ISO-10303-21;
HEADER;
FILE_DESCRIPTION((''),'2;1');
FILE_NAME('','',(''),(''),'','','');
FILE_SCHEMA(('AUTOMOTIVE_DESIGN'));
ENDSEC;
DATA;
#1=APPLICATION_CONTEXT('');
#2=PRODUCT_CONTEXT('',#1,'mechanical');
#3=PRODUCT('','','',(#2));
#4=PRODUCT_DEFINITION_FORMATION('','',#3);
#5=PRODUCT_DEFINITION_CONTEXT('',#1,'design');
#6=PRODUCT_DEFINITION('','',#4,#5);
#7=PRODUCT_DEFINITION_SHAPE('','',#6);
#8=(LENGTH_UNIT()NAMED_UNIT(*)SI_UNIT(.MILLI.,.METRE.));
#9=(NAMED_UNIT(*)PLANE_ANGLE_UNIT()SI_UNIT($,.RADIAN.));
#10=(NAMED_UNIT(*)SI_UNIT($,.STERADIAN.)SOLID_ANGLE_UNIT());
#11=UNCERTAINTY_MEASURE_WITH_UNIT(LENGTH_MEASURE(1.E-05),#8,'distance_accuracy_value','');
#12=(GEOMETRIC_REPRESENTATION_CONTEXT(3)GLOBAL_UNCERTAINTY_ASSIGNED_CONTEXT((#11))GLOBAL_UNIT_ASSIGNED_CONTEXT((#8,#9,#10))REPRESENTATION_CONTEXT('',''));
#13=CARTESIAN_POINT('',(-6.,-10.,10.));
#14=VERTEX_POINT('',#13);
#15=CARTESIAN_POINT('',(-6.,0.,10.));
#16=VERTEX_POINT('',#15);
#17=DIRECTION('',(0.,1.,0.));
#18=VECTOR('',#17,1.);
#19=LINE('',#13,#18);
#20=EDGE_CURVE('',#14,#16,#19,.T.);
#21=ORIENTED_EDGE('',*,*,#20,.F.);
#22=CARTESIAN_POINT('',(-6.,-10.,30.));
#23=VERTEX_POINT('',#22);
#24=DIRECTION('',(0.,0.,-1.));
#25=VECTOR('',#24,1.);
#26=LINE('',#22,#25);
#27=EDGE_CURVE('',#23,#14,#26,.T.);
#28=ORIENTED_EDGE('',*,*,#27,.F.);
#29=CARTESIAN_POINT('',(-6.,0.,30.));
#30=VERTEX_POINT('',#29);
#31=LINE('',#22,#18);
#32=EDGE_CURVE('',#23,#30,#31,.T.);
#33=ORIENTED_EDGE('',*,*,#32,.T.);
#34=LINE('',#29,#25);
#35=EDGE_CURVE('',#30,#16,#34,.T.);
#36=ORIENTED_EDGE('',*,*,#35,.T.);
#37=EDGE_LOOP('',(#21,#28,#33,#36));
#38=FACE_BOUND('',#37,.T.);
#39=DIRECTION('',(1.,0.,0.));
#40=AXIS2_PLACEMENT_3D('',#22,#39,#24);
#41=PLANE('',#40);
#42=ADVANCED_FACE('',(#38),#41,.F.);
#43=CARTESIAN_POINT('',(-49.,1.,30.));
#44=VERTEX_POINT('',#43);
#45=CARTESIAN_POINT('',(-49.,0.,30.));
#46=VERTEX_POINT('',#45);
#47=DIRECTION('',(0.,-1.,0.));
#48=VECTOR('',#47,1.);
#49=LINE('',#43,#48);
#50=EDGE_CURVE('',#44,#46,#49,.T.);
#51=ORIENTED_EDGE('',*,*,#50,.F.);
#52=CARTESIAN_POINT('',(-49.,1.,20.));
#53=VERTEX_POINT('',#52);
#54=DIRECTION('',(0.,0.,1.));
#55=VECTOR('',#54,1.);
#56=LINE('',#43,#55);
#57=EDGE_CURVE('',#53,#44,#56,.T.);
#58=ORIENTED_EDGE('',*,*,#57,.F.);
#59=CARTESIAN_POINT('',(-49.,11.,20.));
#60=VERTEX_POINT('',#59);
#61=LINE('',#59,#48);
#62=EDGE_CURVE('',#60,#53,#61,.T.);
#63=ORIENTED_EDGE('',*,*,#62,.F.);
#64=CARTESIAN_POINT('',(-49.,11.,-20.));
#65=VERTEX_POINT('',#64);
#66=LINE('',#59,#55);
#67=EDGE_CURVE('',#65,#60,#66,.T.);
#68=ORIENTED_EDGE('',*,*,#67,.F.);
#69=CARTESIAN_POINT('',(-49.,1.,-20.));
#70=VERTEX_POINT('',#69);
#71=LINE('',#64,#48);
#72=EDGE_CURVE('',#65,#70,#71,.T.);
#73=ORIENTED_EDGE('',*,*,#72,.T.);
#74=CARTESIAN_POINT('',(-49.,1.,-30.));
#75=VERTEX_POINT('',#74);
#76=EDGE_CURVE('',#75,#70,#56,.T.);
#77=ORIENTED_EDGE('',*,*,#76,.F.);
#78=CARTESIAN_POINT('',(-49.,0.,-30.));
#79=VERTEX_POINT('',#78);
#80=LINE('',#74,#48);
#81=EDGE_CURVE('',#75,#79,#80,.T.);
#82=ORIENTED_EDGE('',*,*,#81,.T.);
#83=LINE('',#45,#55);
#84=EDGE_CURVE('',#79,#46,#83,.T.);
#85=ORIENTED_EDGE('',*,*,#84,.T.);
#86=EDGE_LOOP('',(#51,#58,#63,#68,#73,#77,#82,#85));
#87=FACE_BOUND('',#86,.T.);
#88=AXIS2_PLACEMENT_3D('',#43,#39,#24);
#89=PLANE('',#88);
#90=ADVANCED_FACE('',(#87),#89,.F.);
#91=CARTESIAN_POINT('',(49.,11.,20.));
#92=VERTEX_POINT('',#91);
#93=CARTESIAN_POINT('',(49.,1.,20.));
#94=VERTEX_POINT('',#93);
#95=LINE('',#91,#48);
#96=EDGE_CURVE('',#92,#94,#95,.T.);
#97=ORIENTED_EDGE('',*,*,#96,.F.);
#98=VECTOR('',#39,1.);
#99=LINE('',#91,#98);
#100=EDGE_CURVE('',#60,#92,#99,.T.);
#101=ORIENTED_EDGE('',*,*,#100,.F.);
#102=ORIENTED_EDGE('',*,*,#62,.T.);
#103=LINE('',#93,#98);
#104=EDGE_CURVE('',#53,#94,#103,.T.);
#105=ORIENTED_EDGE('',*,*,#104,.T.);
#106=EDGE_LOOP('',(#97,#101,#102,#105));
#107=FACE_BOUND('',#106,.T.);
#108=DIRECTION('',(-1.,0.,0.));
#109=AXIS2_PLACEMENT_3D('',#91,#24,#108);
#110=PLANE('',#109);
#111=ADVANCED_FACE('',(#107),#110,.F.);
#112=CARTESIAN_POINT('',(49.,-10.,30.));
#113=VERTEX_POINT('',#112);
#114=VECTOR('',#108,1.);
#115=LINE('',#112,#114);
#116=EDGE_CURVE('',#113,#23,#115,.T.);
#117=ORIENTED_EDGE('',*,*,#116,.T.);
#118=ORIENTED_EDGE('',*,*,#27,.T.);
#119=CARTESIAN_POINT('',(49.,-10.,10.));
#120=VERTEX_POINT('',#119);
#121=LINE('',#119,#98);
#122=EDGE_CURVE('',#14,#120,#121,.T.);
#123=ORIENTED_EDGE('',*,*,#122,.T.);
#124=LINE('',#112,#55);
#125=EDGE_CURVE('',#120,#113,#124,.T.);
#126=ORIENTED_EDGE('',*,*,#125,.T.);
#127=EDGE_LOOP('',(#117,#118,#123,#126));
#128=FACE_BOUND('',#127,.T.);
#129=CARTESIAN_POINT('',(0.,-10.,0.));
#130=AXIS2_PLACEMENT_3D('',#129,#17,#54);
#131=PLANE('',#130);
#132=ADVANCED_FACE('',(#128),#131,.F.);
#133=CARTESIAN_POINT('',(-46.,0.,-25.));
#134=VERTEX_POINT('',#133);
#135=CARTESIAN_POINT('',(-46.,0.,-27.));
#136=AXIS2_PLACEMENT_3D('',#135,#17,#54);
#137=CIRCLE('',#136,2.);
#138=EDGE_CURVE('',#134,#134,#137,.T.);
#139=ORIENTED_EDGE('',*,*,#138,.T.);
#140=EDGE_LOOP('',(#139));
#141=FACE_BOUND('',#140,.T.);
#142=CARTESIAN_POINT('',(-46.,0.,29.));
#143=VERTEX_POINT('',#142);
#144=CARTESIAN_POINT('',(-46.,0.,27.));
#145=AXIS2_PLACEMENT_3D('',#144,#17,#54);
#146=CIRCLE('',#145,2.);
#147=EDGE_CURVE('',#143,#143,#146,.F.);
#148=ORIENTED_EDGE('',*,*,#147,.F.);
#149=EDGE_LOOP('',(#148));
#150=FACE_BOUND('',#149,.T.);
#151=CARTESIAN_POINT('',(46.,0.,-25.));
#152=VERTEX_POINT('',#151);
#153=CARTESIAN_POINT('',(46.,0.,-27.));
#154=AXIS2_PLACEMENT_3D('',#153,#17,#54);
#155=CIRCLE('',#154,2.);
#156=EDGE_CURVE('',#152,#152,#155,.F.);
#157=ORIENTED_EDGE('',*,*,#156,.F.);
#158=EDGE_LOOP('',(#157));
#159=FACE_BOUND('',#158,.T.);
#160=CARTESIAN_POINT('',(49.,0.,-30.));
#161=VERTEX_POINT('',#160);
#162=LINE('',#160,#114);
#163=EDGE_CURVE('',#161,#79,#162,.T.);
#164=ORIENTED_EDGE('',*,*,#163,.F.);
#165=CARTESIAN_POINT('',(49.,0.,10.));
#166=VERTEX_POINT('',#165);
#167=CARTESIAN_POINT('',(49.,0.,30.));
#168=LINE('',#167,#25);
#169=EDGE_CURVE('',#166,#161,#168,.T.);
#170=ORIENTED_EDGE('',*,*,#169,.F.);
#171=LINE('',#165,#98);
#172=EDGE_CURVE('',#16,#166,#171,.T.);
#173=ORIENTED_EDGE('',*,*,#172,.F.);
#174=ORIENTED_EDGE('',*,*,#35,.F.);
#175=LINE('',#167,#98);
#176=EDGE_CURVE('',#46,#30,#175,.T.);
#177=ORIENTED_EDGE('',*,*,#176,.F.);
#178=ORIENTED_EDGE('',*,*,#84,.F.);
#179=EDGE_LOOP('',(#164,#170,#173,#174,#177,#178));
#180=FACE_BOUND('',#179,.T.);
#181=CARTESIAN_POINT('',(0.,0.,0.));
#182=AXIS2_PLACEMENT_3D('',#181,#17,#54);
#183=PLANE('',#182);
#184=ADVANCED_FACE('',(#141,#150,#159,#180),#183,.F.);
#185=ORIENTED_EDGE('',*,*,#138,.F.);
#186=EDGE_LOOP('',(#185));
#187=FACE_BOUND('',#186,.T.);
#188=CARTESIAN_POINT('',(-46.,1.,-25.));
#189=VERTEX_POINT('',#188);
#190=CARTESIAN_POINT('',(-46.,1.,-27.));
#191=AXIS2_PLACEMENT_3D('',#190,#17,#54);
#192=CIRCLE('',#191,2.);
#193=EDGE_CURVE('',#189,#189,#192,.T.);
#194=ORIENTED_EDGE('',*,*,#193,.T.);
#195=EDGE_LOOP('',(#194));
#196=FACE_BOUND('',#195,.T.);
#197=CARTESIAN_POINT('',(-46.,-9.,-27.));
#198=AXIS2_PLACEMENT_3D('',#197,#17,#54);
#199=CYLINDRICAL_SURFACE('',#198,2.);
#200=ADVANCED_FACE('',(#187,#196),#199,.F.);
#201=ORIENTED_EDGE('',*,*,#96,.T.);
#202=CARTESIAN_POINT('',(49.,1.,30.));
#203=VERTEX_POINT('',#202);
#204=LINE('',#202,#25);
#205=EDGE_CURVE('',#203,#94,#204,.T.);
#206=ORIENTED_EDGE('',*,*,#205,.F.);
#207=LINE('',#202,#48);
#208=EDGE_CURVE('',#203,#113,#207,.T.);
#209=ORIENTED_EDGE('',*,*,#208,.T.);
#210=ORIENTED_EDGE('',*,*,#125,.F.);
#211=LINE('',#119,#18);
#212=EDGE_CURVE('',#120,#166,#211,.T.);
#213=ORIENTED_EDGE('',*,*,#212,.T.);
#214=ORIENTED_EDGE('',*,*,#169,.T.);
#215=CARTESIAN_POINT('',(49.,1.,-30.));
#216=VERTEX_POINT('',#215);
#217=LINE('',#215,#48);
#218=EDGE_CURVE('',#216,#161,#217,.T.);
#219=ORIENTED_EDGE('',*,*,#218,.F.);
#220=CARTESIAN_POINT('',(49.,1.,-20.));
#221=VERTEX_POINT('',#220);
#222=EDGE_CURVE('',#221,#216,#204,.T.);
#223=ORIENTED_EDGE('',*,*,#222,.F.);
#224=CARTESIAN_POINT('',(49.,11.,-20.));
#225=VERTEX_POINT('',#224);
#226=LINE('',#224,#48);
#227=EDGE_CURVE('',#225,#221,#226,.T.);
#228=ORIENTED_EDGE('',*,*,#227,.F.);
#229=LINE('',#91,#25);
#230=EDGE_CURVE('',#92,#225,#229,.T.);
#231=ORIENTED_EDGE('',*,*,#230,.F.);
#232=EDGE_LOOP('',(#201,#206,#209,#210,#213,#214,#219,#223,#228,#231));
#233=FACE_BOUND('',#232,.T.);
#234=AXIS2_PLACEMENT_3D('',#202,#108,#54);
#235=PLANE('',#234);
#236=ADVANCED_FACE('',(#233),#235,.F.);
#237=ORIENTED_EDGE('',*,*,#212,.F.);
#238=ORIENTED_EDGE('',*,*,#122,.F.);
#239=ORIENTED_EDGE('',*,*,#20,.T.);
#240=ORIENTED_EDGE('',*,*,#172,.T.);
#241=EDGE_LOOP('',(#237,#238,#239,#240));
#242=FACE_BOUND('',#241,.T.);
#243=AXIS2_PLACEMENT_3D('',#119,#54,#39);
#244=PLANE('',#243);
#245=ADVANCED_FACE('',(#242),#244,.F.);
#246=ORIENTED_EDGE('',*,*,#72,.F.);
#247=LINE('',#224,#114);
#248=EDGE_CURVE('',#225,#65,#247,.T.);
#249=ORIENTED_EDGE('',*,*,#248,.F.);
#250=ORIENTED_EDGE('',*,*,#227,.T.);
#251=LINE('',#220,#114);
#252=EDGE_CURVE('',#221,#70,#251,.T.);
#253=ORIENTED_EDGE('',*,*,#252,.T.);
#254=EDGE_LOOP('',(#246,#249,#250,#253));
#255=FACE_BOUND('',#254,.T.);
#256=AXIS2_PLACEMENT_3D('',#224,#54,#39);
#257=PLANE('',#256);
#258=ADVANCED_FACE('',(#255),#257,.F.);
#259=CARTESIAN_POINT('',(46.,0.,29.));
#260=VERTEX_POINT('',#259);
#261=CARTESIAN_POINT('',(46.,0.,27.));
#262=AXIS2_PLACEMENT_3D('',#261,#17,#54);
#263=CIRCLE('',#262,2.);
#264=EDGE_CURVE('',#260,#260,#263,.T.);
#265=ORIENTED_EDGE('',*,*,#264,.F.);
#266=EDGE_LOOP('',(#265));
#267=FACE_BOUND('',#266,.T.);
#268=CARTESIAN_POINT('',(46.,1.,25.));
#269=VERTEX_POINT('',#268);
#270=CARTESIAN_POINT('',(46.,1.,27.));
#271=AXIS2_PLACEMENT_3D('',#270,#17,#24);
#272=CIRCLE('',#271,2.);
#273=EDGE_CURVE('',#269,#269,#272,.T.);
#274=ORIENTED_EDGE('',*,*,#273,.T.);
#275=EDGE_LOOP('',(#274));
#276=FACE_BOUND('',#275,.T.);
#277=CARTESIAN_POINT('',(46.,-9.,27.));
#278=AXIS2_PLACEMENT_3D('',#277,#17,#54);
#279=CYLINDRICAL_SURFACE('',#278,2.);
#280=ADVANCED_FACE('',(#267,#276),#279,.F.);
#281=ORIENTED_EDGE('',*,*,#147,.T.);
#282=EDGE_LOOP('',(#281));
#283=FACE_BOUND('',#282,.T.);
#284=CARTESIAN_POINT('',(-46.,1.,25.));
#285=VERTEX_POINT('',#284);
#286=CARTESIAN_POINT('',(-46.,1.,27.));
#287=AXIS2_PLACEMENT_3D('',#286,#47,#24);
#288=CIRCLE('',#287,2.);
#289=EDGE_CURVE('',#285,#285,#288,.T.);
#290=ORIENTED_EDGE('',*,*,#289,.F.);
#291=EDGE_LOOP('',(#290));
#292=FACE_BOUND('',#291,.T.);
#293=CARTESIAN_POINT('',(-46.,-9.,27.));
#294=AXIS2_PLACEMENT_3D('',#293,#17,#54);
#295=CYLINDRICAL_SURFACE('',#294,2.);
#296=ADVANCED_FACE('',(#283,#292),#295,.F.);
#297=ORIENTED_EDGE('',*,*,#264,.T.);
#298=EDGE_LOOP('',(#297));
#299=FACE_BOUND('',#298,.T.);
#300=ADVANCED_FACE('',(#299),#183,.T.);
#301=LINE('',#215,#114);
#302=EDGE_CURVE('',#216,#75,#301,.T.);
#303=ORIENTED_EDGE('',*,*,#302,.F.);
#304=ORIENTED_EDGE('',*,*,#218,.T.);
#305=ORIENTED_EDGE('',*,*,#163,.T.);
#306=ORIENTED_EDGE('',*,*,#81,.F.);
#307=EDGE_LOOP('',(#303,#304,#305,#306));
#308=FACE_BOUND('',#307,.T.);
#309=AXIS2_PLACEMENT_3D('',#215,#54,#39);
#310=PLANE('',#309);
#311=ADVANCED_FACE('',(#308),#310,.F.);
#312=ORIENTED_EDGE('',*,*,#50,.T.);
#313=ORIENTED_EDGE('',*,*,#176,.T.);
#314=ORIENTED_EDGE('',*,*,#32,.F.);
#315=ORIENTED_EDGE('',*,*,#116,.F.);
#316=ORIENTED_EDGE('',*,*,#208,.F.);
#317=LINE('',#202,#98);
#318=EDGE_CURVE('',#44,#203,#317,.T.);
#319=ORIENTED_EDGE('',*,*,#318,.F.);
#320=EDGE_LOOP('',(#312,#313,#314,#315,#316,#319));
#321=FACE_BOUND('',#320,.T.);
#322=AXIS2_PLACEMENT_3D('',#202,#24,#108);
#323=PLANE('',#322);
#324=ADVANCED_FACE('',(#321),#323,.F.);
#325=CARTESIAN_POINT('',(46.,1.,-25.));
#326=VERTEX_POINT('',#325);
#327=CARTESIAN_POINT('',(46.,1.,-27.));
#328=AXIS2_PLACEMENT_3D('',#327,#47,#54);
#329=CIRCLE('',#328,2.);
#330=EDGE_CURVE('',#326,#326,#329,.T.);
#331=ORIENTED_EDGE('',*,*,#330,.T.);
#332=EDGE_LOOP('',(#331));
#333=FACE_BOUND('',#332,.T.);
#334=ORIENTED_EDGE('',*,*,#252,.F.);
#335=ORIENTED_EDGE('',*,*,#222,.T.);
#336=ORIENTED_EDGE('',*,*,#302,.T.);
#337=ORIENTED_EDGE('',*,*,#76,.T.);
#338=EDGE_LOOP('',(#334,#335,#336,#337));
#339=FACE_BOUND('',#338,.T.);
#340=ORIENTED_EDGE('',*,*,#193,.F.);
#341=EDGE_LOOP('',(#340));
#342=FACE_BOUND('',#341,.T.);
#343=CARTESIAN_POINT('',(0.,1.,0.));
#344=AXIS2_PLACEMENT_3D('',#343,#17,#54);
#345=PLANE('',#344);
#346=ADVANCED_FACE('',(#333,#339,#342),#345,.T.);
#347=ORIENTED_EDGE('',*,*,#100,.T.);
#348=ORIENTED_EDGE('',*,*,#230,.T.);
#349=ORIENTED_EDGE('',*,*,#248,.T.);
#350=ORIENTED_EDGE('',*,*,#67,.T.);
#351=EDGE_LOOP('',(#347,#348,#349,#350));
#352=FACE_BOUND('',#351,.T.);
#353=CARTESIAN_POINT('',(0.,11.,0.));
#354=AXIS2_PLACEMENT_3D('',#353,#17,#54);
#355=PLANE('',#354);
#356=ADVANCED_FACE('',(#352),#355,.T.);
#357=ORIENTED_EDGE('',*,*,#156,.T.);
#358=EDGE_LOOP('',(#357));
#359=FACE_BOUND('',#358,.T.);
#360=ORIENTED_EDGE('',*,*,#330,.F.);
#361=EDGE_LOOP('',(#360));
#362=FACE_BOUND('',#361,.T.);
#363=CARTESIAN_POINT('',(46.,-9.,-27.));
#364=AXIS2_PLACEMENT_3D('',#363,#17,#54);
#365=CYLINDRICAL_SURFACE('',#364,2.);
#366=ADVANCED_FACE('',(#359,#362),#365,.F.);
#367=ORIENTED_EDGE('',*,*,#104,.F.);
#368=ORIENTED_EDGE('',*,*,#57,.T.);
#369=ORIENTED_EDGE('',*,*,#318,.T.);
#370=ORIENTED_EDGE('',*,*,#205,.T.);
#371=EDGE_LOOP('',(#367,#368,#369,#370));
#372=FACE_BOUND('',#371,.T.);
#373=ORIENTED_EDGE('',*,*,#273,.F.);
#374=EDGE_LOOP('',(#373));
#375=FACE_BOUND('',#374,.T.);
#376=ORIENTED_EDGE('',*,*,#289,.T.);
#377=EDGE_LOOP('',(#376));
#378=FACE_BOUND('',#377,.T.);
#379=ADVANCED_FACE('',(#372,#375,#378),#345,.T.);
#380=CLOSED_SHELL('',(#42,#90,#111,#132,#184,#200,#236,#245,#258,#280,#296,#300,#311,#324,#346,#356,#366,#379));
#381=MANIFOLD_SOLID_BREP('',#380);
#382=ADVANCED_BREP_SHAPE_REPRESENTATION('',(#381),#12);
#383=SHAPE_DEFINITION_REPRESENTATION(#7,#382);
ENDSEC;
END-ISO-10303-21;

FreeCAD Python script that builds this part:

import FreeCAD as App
import Part
import Sketcher

V = App.Vector


def add_polygon(sketch, points):
    """Adds a closed chain of lines whose ends are joined by coincident constraints."""
    first, n = sketch.GeometryCount, len(points)
    for a, b in zip(points, points[1:] + points[:1]):
        sketch.addGeometry(Part.LineSegment(App.Vector(*a, 0), App.Vector(*b, 0)), False)
    for i in range(n):
        sketch.addConstraint(Sketcher.Constraint("Coincident", first + i, 2, first + (i + 1) % n, 1))

doc = App.newDocument("Part")
params = doc.addObject("Spreadsheet::Sheet", "Params")
for row, (alias, value) in enumerate([
    ("sketch1_width", "98 mm"),
    ("sketch1_height", "60 mm"),
    ("pad1_length", "1 mm"),
    ("sketch2_width", "98 mm"),
    ("sketch2_height", "40 mm"),
    ("pad2_length", "10 mm"),
    ("sketch3_diameter", "4 mm"),
    ("pocket1_length", "10 mm"),
    ("sketch4_diameter", "4 mm"),
    ("pocket2_length", "10 mm"),
    ("sketch5_width", "55 mm"),
    ("sketch5_height", "20 mm"),
    ("pad3_length", "10 mm"),
], start=1):
    params.set(f"A{row}", alias)
    params.set(f"B{row}", "=" + value)
    params.setAlias(f"B{row}", alias)

body = doc.addObject("PartDesign::Body", "Body")

# Sketch on XZ plane
sketch1 = body.newObject("Sketcher::SketchObject", "Sketch")
sketch1.AttachmentSupport = (doc.getObject("XZ_Plane"), [""])
sketch1.MapMode = "FlatFace"
add_polygon(sketch1, [(-49, -30), (-49, 30), (49, 30), (49, -30)])  # lines 0-3
sketch1.addConstraint(Sketcher.Constraint("Vertical", 0))
sketch1.addConstraint(Sketcher.Constraint("Horizontal", 1))
sketch1.addConstraint(Sketcher.Constraint("Vertical", 2))
sketch1.addConstraint(Sketcher.Constraint("Horizontal", 3))
sketch1.addConstraint(Sketcher.Constraint("Symmetric", 0, 2, 2, 2, -1, 1))
sketch1.addConstraint(Sketcher.Constraint("DistanceX", 1, 1, 1, 2, 98.0))
sketch1.addConstraint(Sketcher.Constraint("DistanceY", 0, 1, 0, 2, 60.0))
sketch1.setExpression("Constraints[9]", "Params.sketch1_width")
sketch1.setExpression("Constraints[10]", "Params.sketch1_height")
pad1 = body.newObject("PartDesign::Pad", "Pad")
pad1.Profile = sketch1
pad1.setExpression("Length", "Params.pad1_length")
pad1.Reversed = True

# Sketch on XZ plane
sketch2 = body.newObject("Sketcher::SketchObject", "Sketch001")
sketch2.AttachmentSupport = (doc.getObject("XZ_Plane"), [""])
sketch2.MapMode = "FlatFace"
sketch2.AttachmentOffset = App.Placement(V(0, 0, -1), App.Rotation())
add_polygon(sketch2, [(-49, -20), (-49, 20), (49, 20), (49, -20)])  # lines 0-3
sketch2.addConstraint(Sketcher.Constraint("Vertical", 0))
sketch2.addConstraint(Sketcher.Constraint("Horizontal", 1))
sketch2.addConstraint(Sketcher.Constraint("Vertical", 2))
sketch2.addConstraint(Sketcher.Constraint("Horizontal", 3))
sketch2.addConstraint(Sketcher.Constraint("Symmetric", 0, 2, 2, 2, -1, 1))
sketch2.addConstraint(Sketcher.Constraint("DistanceX", 1, 1, 1, 2, 98.0))
sketch2.addConstraint(Sketcher.Constraint("DistanceY", 0, 1, 0, 2, 40.0))
sketch2.setExpression("Constraints[9]", "Params.sketch2_width")
sketch2.setExpression("Constraints[10]", "Params.sketch2_height")
pad2 = body.newObject("PartDesign::Pad", "Pad001")
pad2.Profile = sketch2
pad2.setExpression("Length", "Params.pad2_length")
pad2.Reversed = True

# Sketch on XZ plane
sketch3 = body.newObject("Sketcher::SketchObject", "Sketch002")
sketch3.AttachmentSupport = (doc.getObject("XZ_Plane"), [""])
sketch3.MapMode = "FlatFace"
sketch3.AttachmentOffset = App.Placement(V(0, 0, -1), App.Rotation())
sketch3.addGeometry(Part.Circle(V(-46, -27, 0), V(0, 0, 1), 2), False)
sketch3.addConstraint(Sketcher.Constraint("Diameter", 0, 4.0))
sketch3.addConstraint(Sketcher.Constraint("DistanceX", 0, 3, -1, 1, 46.0))
sketch3.addConstraint(Sketcher.Constraint("DistanceY", 0, 3, -1, 1, 27.0))
sketch3.setExpression("Constraints[0]", "Params.sketch3_diameter")
pocket1 = body.newObject("PartDesign::Pocket", "Pocket")
pocket1.Profile = sketch3
pocket1.setExpression("Length", "Params.pocket1_length")
pocket1.Reversed = True
doc.recompute()

mirrored = body.newObject("PartDesign::Mirrored", "Mirrored")
mirrored.Originals = [pocket1]
mirrored.MirrorPlane = (doc.getObject("XY_Plane"), [""])
body.Tip = mirrored
doc.recompute()

mirrored2 = body.newObject("PartDesign::Mirrored", "Mirrored001")
mirrored2.Originals = [pocket1]
mirrored2.MirrorPlane = (doc.getObject("YZ_Plane"), [""])
body.Tip = mirrored2

# Sketch on XZ plane
sketch4 = body.newObject("Sketcher::SketchObject", "Sketch003")
sketch4.AttachmentSupport = (doc.getObject("XZ_Plane"), [""])
sketch4.MapMode = "FlatFace"
sketch4.AttachmentOffset = App.Placement(V(0, 0, -1), App.Rotation())
sketch4.addGeometry(Part.Circle(V(46, 27, 0), V(0, 0, 1), 2), False)
sketch4.addConstraint(Sketcher.Constraint("Diameter", 0, 4.0))
sketch4.addConstraint(Sketcher.Constraint("DistanceX", -1, 1, 0, 3, 46.0))
sketch4.addConstraint(Sketcher.Constraint("DistanceY", -1, 1, 0, 3, 27.0))
sketch4.setExpression("Constraints[0]", "Params.sketch4_diameter")
pocket2 = body.newObject("PartDesign::Pocket", "Pocket001")
pocket2.Profile = sketch4
pocket2.setExpression("Length", "Params.pocket2_length")
pocket2.Reversed = True

# Sketch on XZ plane
sketch5 = body.newObject("Sketcher::SketchObject", "Sketch004")
sketch5.AttachmentSupport = (doc.getObject("XZ_Plane"), [""])
sketch5.MapMode = "FlatFace"
add_polygon(sketch5, [(-6, 30), (-6, 10), (49, 10), (49, 30)])  # lines 0-3
sketch5.addConstraint(Sketcher.Constraint("Vertical", 0))
sketch5.addConstraint(Sketcher.Constraint("Horizontal", 1))
sketch5.addConstraint(Sketcher.Constraint("Vertical", 2))
sketch5.addConstraint(Sketcher.Constraint("Horizontal", 3))
sketch5.addConstraint(Sketcher.Constraint("DistanceX", 1, 1, 1, 2, 55.0))
sketch5.addConstraint(Sketcher.Constraint("DistanceY", 0, 2, 0, 1, 20.0))
sketch5.addConstraint(Sketcher.Constraint("DistanceX", 0, 2, -1, 1, 6.0))
sketch5.addConstraint(Sketcher.Constraint("DistanceY", -1, 1, 0, 2, 10.0))
sketch5.setExpression("Constraints[8]", "Params.sketch5_width")
sketch5.setExpression("Constraints[9]", "Params.sketch5_height")
pad3 = body.newObject("PartDesign::Pad", "Pad002")
pad3.Profile = sketch5
pad3.setExpression("Length", "Params.pad3_length")

doc.recompute()
